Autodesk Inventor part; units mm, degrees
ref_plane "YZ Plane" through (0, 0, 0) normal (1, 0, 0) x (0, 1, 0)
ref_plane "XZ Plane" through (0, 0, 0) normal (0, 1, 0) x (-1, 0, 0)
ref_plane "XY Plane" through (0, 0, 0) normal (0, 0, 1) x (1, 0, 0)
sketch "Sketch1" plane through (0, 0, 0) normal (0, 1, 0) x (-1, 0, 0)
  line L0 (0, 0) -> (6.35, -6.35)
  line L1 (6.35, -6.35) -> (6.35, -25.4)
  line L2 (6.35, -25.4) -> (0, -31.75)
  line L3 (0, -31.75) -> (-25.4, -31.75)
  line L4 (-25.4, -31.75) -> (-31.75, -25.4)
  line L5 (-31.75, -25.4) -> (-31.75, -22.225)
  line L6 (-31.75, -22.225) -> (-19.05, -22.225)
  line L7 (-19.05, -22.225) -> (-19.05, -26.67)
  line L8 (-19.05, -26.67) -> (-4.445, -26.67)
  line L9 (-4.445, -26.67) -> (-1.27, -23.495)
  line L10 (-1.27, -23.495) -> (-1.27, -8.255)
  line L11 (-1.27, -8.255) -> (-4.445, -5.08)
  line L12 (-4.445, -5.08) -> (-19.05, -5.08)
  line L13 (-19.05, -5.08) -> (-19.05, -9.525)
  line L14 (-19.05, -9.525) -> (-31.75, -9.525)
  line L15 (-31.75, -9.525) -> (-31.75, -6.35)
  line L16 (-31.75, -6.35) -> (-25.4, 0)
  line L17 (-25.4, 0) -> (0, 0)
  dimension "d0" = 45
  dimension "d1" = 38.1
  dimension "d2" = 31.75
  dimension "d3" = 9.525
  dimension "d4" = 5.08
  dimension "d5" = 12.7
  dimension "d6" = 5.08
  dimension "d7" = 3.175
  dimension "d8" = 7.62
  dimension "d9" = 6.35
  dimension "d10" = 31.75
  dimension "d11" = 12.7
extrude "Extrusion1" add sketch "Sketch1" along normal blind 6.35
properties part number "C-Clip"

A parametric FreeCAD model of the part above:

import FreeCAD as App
import Part
import Sketcher
from FreeCAD import Vector
Q = App.Units.Quantity


def add_polygon(sketch, points):
    """Adds a closed chain of lines whose ends are joined by coincident constraints."""
    first, n = sketch.GeometryCount, len(points)
    for a, b in zip(points, points[1:] + points[:1]):
        sketch.addGeometry(Part.LineSegment(App.Vector(*a, 0), App.Vector(*b, 0)), False)
    for i in range(n):
        sketch.addConstraint(Sketcher.Constraint("Coincident", first + i, 2, first + (i + 1) % n, 1))

doc = App.newDocument("Part")
body = doc.addObject("PartDesign::Body", "Body")

# Sketch on XZ plane
sketch1 = body.newObject("Sketcher::SketchObject", "Sketch")
sketch1.AttachmentSupport = (doc.getObject("XZ_Plane"), [""])
sketch1.MapMode = "FlatFace"
add_polygon(sketch1, [(-6.3, -6.3), (0, 0), (25.4, 0), (31.8, -6.3), (31.8, -9.5), (19.1, -9.5), (19.1, -5.1), (4.4, -5.1), (1.3, -8.3), (1.3, -23.5), (4.4, -26.7), (19.1, -26.7), (19.1, -22.2), (31.8, -22.2), (31.8, -25.4), (25.4, -31.8), (0, -31.8), (-6.3, -25.4)])  # lines 0-17
sketch1.addConstraint([
    Sketcher.Constraint("Horizontal", 1),
    Sketcher.Constraint("Vertical", 3),
    Sketcher.Constraint("Horizontal", 4),
    Sketcher.Constraint("Vertical", 5),
    Sketcher.Constraint("Horizontal", 6),
    Sketcher.Constraint("Vertical", 8),
    Sketcher.Constraint("Horizontal", 10),
    Sketcher.Constraint("Vertical", 11),
    Sketcher.Constraint("Horizontal", 12),
    Sketcher.Constraint("Vertical", 13),
    Sketcher.Constraint("Horizontal", 15),
    Sketcher.Constraint("Vertical", 17),
    Sketcher.Constraint("Coincident", 0, 2, -1, 1),
    Sketcher.Constraint("PointOnObject", 15, 2, -2),
    Sketcher.Constraint("Perpendicular", 0, 2),
    Sketcher.Constraint("Perpendicular", 2, 7),
    Sketcher.Constraint("Perpendicular", 7, 9),
    Sketcher.Constraint("Perpendicular", 9, 14),
    Sketcher.Constraint("Perpendicular", 14, 16),
    Sketcher.Constraint("Horizontal", 13, 2, 16, 2),
    Sketcher.Constraint("Horizontal", 2, 2, 17, 2),
    Sketcher.Constraint("Vertical", 6, 2, 9, 2),
    Sketcher.Constraint("Vertical", 5, 2, 10, 2),
    Sketcher.Constraint("Vertical", 3, 2, 12, 2),
    Sketcher.Constraint("Vertical", 1, 2, 14, 2),
    Sketcher.Constraint("Equal", 5, 11),
    Sketcher.Constraint("Equal", 3, 13),
    Sketcher.Constraint("DistanceX", 4, 2, 4, 1, Q("0.5 in")),
    Sketcher.Constraint("DistanceY", 5, 2, -1, 1, Q("0.2 in")),
    Sketcher.Constraint("DistanceY", 11, 2, 4, 2, Q("0.5 in")),
    Sketcher.Constraint("DistanceX", 16, 2, 8, 2, Q("0.3 in")),
    Sketcher.Constraint("DistanceX", 1, 1, 1, 2, Q("1 in")),
    Sketcher.Constraint("DistanceY", 3, 2, 3, 1, Q("0.125 in")),
    Sketcher.Constraint("DistanceX", -1, 1, 2, 2, Q("1.25 in")),
    Sketcher.Constraint("DistanceY", 8, 2, 8, 1, Q("0.6 in")),
])
pad1 = body.newObject("PartDesign::Pad", "Pad")
pad1.Profile = sketch1
pad1.Length = Q("0.25 in")
pad1.Reversed = True

doc.recompute()
